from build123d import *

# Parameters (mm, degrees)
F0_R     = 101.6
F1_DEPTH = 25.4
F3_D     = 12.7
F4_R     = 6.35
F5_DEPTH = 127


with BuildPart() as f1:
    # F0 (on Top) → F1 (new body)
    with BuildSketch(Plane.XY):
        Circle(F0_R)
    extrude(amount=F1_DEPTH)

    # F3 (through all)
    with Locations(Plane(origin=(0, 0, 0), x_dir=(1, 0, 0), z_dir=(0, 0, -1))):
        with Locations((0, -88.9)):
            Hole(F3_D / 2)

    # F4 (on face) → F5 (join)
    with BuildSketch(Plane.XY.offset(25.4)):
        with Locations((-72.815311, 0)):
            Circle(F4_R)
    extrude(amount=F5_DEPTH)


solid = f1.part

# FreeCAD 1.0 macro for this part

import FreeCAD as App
import Part
import Sketcher

V = App.Vector
Q = App.Units.Quantity

doc = App.newDocument("Part")
body = doc.addObject("PartDesign::Body", "Body")

# Sketch on XY plane
sketch1 = body.newObject("Sketcher::SketchObject", "Sketch")
sketch1.AttachmentSupport = (doc.getObject("XY_Plane"), [""])
sketch1.MapMode = "FlatFace"
sketch1.addGeometry(Part.Circle(V(0, 0, 0), V(0, 0, 1), 102), False)
sketch1.addConstraint(Sketcher.Constraint("Coincident", 0, 3, -1, 1))
sketch1.addConstraint(Sketcher.Constraint("Diameter", 0, Q("8 in")))
pad1 = body.newObject("PartDesign::Pad", "Pad")
pad1.Profile = sketch1
pad1.Length = Q("1 in")

# Sketch on XY plane
sketch2 = body.newObject("Sketcher::SketchObject", "Sketch001")
sketch2.AttachmentSupport = (doc.getObject("XY_Plane"), [""])
sketch2.MapMode = "FlatFace"
sketch2.addGeometry(Part.Circle(V(0, 89, 0), V(0, 0, 1), 6), False)
sketch2.addConstraint(Sketcher.Constraint("PointOnObject", 0, 3, -2))
sketch2.addConstraint(Sketcher.Constraint("Diameter", 0, Q("0.5 in")))
sketch2.addConstraint(Sketcher.Constraint("DistanceY", -1, 1, 0, 3, Q("3.5 in")))
doc.recompute()
hole = body.newObject("PartDesign::Hole", "Hole")
hole.Profile = sketch2
hole.ThreadType = "None"
hole.Diameter = Q("0.5 in")
hole.DepthType = "ThroughAll"
hole.Reversed = True

# Sketch on XY plane
sketch3 = body.newObject("Sketcher::SketchObject", "Sketch002")
sketch3.AttachmentSupport = (doc.getObject("XY_Plane"), [""])
sketch3.MapMode = "FlatFace"
sketch3.AttachmentOffset = App.Placement(V(0, 0, 1 * 25.4), App.Rotation())
sketch3.addGeometry(Part.Circle(V(-73, 0, 0), V(0, 0, 1), 6), False)
sketch3.addConstraint(Sketcher.Constraint("PointOnObject", 0, 3, -1))
sketch3.addConstraint(Sketcher.Constraint("Diameter", 0, Q("0.5 in")))
sketch3.addConstraint(Sketcher.Constraint("DistanceX", 0, 3, -1, 1, Q("72.815311 mm")))
pad2 = body.newObject("PartDesign::Pad", "Pad001")
pad2.Profile = sketch3
pad2.Length = Q("5 in")

doc.recompute()
